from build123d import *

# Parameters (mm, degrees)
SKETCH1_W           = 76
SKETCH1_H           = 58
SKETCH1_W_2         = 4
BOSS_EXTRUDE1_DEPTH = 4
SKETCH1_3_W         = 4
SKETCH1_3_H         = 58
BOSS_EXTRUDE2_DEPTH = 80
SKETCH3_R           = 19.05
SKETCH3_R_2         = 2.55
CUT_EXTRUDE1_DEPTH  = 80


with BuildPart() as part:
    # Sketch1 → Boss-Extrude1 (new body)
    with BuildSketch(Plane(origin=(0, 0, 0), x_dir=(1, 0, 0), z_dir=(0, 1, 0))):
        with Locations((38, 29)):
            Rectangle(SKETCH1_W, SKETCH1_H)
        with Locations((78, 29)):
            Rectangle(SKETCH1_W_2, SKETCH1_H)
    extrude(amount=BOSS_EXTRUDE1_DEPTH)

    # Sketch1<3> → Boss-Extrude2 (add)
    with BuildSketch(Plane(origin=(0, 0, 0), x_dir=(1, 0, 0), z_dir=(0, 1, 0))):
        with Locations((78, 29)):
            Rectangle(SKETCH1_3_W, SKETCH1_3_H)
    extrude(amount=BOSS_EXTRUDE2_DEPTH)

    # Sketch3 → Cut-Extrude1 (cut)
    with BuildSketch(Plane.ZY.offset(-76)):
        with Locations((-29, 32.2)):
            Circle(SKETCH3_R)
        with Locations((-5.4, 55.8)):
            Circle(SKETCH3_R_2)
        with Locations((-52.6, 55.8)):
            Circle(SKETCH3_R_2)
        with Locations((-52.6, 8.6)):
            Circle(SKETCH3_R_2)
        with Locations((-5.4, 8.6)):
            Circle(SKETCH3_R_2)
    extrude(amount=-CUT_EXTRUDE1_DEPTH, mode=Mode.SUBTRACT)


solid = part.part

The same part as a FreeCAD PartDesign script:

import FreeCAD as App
import Part
import Sketcher
Q = App.Units.Quantity

doc = App.newDocument("Part")
params = doc.addObject("Spreadsheet::Sheet", "Params")
for row, (alias, value) in enumerate([
    ("sketch1_width", "80 mm"),
    ("sketch1_height", "58 mm"),
    ("pad1_length", "4 mm"),
    ("sketch2_width", "4 mm"),
    ("sketch2_height", "58 mm"),
    ("pad2_length", "80 mm"),
    ("sketch3_diameter", "38.1 mm"),
    ("sketch3_diameter2", "5.1 mm"),
    ("pocket1_length", "80 mm"),
], start=1):
    params.set(f"A{row}", alias)
    params.set(f"B{row}", "=" + value)
    params.setAlias(f"B{row}", alias)

body = doc.addObject("PartDesign::Body", "Body")

# Sketch on XZ plane
sketch1 = body.newObject("Sketcher::SketchObject", "Sketch")
sketch1.AttachmentSupport = (doc.getObject("XZ_Plane"), [""])
sketch1.MapMode = "FlatFace"
sketch1.addGeometry([
    Part.LineSegment(App.Vector(0, -58, 0), App.Vector(0, 0, 0)),
    Part.LineSegment(App.Vector(0, 0, 0), App.Vector(80, 0, 0)),
    Part.LineSegment(App.Vector(80, 0, 0), App.Vector(80, -58, 0)),
    Part.LineSegment(App.Vector(80, -58, 0), App.Vector(0, -58, 0)),
], False)
sketch1.addConstraint([
    Sketcher.Constraint("Coincident", 0, 2, 1, 1),
    Sketcher.Constraint("Coincident", 1, 2, 2, 1),
    Sketcher.Constraint("Coincident", 2, 2, 3, 1),
    Sketcher.Constraint("Coincident", 3, 2, 0, 1),
    Sketcher.Constraint("Vertical", 0),
    Sketcher.Constraint("Horizontal", 1),
    Sketcher.Constraint("Vertical", 2),
    Sketcher.Constraint("Horizontal", 3),
    Sketcher.Constraint("Coincident", 0, 2, -1, 1),
    Sketcher.Constraint("DistanceX", 1, 1, 1, 2, Q("80 mm")),
    Sketcher.Constraint("DistanceY", 0, 1, 0, 2, Q("58 mm")),
])
sketch1.setExpression("Constraints[9]", "Params.sketch1_width")
sketch1.setExpression("Constraints[10]", "Params.sketch1_height")
pad1 = body.newObject("PartDesign::Pad", "Pad")
pad1.Profile = sketch1
pad1.setExpression("Length", "Params.pad1_length")
pad1.Reversed = True

# Sketch on XZ plane
sketch2 = body.newObject("Sketcher::SketchObject", "Sketch001")
sketch2.AttachmentSupport = (doc.getObject("XZ_Plane"), [""])
sketch2.MapMode = "FlatFace"
sketch2.addGeometry([
    Part.LineSegment(App.Vector(76, -58, 0), App.Vector(76, 0, 0)),
    Part.LineSegment(App.Vector(76, 0, 0), App.Vector(80, 0, 0)),
    Part.LineSegment(App.Vector(80, 0, 0), App.Vector(80, -58, 0)),
    Part.LineSegment(App.Vector(80, -58, 0), App.Vector(76, -58, 0)),
], False)
sketch2.addConstraint([
    Sketcher.Constraint("Coincident", 0, 2, 1, 1),
    Sketcher.Constraint("Coincident", 1, 2, 2, 1),
    Sketcher.Constraint("Coincident", 2, 2, 3, 1),
    Sketcher.Constraint("Coincident", 3, 2, 0, 1),
    Sketcher.Constraint("Vertical", 0),
    Sketcher.Constraint("Horizontal", 1),
    Sketcher.Constraint("Vertical", 2),
    Sketcher.Constraint("Horizontal", 3),
    Sketcher.Constraint("PointOnObject", 0, 2, -1),
    Sketcher.Constraint("DistanceX", 1, 1, 1, 2, Q("4 mm")),
    Sketcher.Constraint("DistanceY", 0, 1, 0, 2, Q("58 mm")),
    Sketcher.Constraint("DistanceX", -1, 1, 0, 2, Q("76 mm")),
])
sketch2.setExpression("Constraints[9]", "Params.sketch2_width")
sketch2.setExpression("Constraints[10]", "Params.sketch2_height")
pad2 = body.newObject("PartDesign::Pad", "Pad001")
pad2.Profile = sketch2
pad2.setExpression("Length", "Params.pad2_length")
pad2.Reversed = True

# Sketch on YZ plane
sketch3 = body.newObject("Sketcher::SketchObject", "Sketch002")
sketch3.AttachmentSupport = (doc.getObject("YZ_Plane"), [""])
sketch3.MapMode = "FlatFace"
sketch3.AttachmentOffset = App.Placement(App.Vector(0, 0, 76), App.Rotation())
sketch3.addGeometry([
    Part.Circle(App.Vector(32.2, -29, 0), App.Vector(0, 0, 1), 19.1),  # 0
    Part.Circle(App.Vector(55.8, -5.4, 0), App.Vector(0, 0, 1), 2.5),  # 1
    Part.Circle(App.Vector(55.8, -52.6, 0), App.Vector(0, 0, 1), 2.5),  # 2
    Part.Circle(App.Vector(8.6, -52.6, 0), App.Vector(0, 0, 1), 2.5),  # 3
    Part.Circle(App.Vector(8.6, -5.4, 0), App.Vector(0, 0, 1), 2.5),  # 4
], False)
sketch3.addConstraint([
    Sketcher.Constraint("Equal", 1, 2),
    Sketcher.Constraint("Equal", 2, 3),
    Sketcher.Constraint("Equal", 3, 4),
    Sketcher.Constraint("Horizontal", 2, 3, 3, 3),
    Sketcher.Constraint("Horizontal", 1, 3, 4, 3),
    Sketcher.Constraint("Vertical", 1, 3, 2, 3),
    Sketcher.Constraint("Vertical", 3, 3, 4, 3),
    Sketcher.Constraint("Diameter", 0, Q("38.1 mm")),
    Sketcher.Constraint("Diameter", 1, Q("5.1 mm")),
    Sketcher.Constraint("DistanceY", 0, 3, -1, 1, Q("29 mm")),
    Sketcher.Constraint("DistanceX", -1, 1, 0, 3, Q("32.2 mm")),
    Sketcher.Constraint("DistanceX", -1, 1, 1, 3, Q("55.8 mm")),
    Sketcher.Constraint("DistanceY", 1, 3, -1, 1, Q("5.4 mm")),
    Sketcher.Constraint("DistanceY", 2, 3, -1, 1, Q("52.6 mm")),
    Sketcher.Constraint("DistanceX", -1, 1, 3, 3, Q("8.6 mm")),
])
sketch3.setExpression("Constraints[7]", "Params.sketch3_diameter")
sketch3.setExpression("Constraints[8]", "Params.sketch3_diameter2")
pocket1 = body.newObject("PartDesign::Pocket", "Pocket")
pocket1.Profile = sketch3
pocket1.setExpression("Length", "Params.pocket1_length")
pocket1.Reversed = True

doc.recompute()
